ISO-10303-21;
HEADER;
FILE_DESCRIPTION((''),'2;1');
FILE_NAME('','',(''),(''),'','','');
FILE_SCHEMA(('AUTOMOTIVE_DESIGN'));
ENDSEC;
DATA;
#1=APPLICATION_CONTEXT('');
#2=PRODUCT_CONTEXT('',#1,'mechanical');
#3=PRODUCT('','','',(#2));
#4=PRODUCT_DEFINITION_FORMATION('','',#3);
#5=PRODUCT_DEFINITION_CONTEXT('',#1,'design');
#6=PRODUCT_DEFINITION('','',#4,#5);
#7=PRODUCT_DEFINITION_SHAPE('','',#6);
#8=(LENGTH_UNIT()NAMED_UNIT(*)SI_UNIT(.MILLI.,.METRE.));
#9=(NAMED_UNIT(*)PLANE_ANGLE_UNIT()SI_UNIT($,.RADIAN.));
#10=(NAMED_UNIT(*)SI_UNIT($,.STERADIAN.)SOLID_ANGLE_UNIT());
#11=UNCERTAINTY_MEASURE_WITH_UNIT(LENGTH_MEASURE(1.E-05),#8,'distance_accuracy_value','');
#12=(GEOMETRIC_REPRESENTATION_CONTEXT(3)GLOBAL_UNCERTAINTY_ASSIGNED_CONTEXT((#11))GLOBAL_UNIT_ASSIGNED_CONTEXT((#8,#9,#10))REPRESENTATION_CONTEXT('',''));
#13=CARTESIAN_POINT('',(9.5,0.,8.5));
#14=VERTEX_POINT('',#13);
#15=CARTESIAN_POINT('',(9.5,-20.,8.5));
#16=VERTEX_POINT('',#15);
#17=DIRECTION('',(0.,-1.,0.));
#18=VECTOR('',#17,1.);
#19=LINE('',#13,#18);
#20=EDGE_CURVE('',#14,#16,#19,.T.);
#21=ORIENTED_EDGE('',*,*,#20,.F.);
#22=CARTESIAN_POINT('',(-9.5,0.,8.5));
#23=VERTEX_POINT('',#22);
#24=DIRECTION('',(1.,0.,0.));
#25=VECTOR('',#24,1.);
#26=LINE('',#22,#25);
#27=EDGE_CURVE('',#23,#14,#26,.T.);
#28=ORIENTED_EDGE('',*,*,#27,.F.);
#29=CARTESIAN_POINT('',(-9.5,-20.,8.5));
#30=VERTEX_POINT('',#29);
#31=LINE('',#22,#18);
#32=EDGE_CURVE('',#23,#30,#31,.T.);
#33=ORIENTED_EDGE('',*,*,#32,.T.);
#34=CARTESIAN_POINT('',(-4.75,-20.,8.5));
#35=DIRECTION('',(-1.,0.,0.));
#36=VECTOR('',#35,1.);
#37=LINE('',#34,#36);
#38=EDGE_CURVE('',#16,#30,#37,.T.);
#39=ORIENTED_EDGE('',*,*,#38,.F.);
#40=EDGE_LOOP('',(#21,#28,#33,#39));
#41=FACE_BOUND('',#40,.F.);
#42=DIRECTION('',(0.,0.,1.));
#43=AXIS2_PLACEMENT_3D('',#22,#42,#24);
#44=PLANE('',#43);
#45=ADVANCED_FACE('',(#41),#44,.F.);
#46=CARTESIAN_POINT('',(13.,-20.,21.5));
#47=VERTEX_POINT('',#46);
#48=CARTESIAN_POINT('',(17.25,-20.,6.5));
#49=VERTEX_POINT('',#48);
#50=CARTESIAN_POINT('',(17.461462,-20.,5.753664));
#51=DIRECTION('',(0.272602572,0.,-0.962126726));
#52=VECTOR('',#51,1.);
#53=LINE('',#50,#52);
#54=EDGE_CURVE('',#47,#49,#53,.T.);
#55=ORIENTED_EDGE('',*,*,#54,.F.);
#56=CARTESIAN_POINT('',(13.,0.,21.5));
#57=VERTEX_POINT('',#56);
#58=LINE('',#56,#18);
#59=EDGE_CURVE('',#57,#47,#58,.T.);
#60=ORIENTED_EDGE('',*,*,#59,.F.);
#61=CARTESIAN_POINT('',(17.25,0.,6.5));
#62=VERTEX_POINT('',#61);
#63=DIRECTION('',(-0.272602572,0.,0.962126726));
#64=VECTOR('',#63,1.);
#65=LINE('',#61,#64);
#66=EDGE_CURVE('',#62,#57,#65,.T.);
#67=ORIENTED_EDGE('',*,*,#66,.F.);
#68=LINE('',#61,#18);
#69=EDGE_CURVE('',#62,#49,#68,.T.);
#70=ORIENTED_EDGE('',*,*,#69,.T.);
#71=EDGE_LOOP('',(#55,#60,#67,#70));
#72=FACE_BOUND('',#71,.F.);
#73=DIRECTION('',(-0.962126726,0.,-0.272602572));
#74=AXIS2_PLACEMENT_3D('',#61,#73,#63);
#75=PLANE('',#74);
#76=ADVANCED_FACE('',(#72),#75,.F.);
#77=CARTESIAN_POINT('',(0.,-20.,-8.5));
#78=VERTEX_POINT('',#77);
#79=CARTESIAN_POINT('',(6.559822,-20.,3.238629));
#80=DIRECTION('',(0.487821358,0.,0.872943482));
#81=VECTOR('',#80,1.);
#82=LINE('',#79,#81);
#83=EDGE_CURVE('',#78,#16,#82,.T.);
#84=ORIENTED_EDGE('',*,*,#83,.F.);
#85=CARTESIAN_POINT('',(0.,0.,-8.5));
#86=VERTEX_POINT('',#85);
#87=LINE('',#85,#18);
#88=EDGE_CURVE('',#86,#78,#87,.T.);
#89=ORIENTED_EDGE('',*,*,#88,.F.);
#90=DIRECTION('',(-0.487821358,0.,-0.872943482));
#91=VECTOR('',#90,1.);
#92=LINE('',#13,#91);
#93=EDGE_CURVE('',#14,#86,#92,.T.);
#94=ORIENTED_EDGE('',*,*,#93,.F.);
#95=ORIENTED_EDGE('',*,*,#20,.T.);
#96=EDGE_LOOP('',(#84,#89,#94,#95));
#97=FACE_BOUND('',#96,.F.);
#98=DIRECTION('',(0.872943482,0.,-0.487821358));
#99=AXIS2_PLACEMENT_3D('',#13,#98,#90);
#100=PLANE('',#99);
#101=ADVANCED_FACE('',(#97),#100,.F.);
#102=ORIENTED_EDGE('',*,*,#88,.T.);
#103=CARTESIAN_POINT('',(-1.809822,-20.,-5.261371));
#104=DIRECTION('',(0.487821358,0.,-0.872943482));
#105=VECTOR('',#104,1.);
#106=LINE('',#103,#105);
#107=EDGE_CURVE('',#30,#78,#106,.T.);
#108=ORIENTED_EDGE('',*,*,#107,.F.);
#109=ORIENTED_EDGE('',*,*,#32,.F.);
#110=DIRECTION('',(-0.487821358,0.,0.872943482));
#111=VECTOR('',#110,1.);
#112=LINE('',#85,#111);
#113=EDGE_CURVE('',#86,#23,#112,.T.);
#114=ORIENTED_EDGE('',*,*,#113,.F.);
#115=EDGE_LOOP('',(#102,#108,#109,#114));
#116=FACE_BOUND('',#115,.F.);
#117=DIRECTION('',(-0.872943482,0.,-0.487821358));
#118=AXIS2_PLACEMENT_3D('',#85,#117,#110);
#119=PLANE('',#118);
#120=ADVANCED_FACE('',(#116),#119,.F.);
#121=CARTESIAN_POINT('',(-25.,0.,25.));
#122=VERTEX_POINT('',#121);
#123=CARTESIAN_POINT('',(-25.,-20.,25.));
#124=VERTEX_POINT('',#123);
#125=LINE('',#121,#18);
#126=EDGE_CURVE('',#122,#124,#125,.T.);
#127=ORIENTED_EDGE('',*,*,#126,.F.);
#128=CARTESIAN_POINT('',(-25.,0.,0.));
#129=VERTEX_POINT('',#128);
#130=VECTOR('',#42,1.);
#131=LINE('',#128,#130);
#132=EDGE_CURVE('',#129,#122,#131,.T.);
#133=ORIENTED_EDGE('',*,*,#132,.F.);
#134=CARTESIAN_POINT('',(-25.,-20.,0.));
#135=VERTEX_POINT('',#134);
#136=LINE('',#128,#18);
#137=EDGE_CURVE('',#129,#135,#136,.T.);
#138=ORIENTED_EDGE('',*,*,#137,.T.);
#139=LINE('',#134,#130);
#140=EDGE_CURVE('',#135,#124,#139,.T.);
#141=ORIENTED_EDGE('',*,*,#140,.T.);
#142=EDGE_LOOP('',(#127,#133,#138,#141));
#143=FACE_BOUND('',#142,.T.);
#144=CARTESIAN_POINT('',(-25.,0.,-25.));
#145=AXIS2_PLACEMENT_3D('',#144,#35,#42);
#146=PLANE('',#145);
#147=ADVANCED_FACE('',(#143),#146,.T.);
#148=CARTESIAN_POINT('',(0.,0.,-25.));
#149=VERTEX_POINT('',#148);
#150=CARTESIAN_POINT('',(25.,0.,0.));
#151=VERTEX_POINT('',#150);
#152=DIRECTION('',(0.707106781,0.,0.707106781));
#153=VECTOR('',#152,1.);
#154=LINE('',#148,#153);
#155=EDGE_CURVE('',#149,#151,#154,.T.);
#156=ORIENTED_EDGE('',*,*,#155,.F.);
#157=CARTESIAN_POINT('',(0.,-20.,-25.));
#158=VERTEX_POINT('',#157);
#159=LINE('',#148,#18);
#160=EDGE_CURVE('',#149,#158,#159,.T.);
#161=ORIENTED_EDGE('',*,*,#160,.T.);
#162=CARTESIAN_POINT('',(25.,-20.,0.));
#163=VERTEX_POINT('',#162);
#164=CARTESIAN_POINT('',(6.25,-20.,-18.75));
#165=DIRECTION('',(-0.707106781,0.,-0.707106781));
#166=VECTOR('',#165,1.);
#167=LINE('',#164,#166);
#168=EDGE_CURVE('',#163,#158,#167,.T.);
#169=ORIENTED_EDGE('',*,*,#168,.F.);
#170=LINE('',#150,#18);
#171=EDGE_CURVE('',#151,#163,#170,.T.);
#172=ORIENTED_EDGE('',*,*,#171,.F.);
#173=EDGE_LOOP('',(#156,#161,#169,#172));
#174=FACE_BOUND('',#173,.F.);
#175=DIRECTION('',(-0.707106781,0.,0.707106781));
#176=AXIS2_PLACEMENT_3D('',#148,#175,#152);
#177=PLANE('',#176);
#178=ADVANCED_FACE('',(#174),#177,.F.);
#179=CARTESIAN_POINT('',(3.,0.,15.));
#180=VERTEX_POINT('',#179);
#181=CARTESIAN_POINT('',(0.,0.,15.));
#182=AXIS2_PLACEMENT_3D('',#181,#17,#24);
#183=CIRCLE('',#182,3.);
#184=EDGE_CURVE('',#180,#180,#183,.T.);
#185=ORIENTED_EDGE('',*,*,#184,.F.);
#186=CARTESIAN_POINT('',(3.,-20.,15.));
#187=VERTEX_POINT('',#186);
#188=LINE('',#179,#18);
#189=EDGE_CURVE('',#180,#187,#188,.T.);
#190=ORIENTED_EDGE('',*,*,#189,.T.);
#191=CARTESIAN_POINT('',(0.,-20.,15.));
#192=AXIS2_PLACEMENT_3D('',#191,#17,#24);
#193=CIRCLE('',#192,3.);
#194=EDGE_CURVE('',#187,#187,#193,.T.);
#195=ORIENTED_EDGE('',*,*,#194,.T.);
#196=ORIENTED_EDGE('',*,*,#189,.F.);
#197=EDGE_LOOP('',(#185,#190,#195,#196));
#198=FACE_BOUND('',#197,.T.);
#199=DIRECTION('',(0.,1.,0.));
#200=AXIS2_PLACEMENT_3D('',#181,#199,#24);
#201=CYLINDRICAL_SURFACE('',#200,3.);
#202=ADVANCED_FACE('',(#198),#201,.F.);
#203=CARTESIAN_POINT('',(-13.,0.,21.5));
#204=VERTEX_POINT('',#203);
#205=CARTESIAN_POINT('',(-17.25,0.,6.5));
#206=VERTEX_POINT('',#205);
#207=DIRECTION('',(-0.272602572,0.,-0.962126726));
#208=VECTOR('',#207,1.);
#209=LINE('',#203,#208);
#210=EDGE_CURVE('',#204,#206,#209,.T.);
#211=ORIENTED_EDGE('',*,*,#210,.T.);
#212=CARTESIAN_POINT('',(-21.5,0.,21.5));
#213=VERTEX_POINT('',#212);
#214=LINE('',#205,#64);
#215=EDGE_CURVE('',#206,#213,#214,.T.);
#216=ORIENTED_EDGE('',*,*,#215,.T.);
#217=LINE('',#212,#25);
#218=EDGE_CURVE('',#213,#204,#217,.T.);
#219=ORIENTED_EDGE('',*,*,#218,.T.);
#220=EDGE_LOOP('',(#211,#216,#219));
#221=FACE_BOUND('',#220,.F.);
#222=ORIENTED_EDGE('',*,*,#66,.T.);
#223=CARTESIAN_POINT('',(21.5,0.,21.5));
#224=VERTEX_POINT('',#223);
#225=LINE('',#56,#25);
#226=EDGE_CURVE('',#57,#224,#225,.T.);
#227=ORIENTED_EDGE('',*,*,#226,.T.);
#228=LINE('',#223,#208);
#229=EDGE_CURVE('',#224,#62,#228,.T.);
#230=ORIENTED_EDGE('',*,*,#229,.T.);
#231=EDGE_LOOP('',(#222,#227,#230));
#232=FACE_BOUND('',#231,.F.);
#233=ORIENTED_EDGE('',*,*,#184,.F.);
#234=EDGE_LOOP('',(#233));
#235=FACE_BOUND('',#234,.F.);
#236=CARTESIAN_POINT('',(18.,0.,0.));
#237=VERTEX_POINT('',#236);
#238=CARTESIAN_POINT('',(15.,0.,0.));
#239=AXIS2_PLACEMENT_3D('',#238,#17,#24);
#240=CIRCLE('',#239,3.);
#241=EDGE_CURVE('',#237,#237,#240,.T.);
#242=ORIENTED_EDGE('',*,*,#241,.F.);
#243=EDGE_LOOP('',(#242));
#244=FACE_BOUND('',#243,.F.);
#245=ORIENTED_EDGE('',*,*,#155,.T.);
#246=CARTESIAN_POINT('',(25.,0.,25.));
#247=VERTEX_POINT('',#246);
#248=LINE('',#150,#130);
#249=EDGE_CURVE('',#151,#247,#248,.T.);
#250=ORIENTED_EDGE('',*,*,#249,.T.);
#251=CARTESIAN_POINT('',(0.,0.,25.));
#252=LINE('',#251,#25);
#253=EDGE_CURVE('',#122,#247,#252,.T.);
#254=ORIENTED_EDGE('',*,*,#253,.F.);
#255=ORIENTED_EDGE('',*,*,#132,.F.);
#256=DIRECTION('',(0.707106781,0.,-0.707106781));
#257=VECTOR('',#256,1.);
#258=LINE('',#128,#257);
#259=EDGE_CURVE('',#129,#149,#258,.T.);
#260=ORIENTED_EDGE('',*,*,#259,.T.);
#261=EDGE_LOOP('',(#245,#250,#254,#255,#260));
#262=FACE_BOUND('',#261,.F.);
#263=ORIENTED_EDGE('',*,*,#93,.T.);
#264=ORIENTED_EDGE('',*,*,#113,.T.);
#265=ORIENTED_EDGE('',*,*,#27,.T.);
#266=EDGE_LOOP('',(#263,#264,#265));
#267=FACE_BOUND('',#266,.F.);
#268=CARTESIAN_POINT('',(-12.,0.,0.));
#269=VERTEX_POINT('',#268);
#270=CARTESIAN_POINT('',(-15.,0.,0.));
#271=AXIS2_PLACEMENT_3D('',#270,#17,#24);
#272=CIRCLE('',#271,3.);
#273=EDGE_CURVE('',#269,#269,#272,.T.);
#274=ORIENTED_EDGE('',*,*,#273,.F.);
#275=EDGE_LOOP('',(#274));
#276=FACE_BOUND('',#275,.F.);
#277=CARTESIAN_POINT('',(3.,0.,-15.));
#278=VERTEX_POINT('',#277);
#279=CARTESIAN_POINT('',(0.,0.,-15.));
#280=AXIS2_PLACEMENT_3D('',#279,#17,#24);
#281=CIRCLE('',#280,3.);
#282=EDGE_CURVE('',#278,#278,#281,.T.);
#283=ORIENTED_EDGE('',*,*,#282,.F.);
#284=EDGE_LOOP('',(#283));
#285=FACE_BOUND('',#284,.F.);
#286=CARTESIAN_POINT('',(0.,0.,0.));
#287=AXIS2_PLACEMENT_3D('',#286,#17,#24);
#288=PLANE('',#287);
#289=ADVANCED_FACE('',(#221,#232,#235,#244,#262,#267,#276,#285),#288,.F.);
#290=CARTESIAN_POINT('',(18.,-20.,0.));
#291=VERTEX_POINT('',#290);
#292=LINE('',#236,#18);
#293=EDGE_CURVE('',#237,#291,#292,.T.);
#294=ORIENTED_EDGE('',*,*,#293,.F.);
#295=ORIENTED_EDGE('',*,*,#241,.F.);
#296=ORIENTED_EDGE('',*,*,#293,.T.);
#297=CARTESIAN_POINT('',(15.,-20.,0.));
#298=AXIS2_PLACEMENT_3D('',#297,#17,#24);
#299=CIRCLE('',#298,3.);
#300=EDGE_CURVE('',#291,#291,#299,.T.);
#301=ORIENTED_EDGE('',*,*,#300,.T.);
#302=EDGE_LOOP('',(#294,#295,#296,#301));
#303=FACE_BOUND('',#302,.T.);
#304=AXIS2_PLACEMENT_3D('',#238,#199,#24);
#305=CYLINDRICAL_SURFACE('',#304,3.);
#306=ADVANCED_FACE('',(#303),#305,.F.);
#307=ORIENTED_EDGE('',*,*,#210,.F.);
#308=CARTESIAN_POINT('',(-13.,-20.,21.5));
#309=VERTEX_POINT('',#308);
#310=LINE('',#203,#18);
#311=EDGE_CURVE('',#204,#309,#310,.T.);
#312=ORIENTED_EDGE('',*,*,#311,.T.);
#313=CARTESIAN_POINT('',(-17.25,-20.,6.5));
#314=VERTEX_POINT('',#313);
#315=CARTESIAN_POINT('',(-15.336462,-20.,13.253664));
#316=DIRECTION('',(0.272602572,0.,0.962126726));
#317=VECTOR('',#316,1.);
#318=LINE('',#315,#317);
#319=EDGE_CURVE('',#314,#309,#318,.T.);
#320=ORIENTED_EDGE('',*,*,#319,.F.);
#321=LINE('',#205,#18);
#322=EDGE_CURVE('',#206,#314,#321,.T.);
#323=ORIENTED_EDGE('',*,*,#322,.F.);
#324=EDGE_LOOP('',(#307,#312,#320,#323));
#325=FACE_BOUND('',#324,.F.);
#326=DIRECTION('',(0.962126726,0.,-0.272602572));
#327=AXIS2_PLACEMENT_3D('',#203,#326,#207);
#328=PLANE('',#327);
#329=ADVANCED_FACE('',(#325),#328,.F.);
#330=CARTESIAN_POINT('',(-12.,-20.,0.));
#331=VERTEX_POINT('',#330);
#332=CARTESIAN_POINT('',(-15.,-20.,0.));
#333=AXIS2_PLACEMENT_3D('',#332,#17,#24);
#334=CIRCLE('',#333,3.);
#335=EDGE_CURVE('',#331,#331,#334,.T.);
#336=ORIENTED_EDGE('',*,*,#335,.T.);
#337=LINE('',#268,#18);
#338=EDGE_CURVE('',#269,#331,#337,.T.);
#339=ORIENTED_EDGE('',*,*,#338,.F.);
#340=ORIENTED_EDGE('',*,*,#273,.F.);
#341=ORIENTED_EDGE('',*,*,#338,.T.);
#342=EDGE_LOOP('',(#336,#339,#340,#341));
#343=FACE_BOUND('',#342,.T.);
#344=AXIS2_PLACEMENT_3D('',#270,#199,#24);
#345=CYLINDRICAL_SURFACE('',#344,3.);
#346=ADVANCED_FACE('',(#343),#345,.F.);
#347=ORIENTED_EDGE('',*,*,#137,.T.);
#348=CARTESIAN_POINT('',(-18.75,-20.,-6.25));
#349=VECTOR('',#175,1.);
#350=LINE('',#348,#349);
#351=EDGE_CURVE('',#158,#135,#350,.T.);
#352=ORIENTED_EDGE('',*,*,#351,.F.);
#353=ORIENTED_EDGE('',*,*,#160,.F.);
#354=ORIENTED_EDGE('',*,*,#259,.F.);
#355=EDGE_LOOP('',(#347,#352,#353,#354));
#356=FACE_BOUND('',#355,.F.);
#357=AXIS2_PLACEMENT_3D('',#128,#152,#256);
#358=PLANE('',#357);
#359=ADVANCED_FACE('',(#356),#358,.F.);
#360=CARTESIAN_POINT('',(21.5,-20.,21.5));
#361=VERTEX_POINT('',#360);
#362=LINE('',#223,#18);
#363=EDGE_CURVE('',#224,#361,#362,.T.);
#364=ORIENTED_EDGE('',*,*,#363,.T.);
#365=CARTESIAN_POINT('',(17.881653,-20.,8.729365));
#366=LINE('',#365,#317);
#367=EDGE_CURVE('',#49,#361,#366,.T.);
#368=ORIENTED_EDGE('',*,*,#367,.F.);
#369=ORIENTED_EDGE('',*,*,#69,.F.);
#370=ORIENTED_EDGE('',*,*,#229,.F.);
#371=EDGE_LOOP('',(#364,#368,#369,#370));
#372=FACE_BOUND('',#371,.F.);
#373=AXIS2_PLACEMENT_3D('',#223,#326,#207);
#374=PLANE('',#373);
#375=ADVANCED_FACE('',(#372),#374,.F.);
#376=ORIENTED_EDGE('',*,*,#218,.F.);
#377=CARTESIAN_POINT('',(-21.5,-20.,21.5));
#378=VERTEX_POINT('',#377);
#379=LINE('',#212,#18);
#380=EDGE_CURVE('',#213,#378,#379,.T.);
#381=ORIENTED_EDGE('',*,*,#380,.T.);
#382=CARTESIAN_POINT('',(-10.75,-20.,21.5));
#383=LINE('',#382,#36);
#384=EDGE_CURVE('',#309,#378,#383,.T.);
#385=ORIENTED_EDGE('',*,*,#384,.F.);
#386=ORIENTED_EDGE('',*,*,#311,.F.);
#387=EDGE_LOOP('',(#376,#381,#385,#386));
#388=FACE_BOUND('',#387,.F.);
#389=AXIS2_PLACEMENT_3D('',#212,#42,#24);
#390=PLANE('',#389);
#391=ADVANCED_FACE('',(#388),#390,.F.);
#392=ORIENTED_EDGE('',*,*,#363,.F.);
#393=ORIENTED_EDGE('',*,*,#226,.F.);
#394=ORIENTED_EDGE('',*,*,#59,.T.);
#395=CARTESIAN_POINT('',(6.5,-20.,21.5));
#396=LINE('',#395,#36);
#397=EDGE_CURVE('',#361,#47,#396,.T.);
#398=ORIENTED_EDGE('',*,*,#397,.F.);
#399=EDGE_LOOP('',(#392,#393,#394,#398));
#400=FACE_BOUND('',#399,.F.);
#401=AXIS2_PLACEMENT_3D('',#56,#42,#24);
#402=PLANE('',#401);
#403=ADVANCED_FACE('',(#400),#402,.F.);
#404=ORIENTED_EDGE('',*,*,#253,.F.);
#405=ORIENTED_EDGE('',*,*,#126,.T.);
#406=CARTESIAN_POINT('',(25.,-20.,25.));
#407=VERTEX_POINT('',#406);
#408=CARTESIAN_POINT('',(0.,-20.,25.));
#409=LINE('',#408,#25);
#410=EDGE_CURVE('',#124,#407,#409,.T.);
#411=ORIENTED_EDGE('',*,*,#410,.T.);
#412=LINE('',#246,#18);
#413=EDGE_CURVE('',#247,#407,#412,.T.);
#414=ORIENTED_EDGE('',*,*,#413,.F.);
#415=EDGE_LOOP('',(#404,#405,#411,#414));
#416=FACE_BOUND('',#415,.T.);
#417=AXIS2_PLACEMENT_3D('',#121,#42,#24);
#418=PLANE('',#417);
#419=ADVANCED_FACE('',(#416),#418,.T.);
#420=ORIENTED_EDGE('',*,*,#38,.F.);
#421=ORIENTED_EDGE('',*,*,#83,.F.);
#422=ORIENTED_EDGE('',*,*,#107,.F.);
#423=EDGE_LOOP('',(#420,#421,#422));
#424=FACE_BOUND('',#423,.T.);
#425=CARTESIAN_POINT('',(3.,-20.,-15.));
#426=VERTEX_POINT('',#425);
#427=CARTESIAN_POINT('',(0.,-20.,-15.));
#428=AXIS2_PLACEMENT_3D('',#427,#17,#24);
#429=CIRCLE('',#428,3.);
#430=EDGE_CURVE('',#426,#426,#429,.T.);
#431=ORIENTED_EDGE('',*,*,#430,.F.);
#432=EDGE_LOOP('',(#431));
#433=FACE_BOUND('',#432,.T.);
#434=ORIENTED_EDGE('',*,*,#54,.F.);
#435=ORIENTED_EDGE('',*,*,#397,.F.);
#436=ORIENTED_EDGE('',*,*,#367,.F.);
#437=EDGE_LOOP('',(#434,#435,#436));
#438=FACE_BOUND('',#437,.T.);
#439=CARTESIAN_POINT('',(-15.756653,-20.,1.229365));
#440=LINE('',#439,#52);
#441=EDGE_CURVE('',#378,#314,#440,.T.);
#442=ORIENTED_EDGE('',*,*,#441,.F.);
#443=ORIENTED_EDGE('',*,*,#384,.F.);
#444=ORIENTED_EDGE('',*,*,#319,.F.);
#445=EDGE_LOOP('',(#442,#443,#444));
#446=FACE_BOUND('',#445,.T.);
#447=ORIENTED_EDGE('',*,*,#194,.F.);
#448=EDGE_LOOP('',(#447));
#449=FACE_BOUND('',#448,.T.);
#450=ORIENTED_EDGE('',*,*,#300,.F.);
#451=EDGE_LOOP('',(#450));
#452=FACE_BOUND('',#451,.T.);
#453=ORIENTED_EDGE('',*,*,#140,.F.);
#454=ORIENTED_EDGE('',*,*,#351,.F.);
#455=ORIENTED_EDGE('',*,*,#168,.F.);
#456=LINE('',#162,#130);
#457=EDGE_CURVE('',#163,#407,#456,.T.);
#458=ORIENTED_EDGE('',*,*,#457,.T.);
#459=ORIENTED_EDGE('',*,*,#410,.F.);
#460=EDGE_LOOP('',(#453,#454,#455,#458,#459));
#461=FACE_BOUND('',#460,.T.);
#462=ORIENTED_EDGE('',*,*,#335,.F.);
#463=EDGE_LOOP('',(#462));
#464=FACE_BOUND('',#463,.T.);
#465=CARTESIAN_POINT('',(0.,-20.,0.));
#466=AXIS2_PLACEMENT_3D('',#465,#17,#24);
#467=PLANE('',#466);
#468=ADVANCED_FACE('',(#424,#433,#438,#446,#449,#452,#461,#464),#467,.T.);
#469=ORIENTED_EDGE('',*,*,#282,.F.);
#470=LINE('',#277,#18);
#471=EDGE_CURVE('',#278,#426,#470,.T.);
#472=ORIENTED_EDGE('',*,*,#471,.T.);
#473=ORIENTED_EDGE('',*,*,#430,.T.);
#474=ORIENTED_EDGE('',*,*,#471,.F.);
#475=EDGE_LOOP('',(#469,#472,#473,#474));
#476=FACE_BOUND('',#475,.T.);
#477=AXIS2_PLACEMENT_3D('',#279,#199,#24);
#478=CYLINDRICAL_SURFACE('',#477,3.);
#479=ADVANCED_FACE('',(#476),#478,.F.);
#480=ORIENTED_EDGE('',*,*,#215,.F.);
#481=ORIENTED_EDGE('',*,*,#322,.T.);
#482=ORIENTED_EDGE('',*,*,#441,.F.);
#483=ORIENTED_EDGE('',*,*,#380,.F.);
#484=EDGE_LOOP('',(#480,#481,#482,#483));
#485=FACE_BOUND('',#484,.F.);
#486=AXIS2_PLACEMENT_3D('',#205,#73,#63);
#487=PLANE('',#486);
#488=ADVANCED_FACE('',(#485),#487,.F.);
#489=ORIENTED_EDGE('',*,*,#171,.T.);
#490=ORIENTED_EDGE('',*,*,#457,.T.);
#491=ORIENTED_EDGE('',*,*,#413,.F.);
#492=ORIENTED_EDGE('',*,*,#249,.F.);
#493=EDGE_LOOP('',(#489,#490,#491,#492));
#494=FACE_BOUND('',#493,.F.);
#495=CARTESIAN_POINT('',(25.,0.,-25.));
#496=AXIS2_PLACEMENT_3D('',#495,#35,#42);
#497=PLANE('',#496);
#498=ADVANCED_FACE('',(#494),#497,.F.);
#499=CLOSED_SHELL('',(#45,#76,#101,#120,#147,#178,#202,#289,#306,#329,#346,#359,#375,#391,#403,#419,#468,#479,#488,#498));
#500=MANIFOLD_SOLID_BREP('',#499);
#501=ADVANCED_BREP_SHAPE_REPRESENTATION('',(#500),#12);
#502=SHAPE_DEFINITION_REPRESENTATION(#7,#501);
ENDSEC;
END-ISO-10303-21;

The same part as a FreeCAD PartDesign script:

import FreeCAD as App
import Part
import Sketcher


def add_polygon(sketch, points):
    """Adds a closed chain of lines whose ends are joined by coincident constraints."""
    first, n = sketch.GeometryCount, len(points)
    for a, b in zip(points, points[1:] + points[:1]):
        sketch.addGeometry(Part.LineSegment(App.Vector(*a, 0), App.Vector(*b, 0)), False)
    for i in range(n):
        sketch.addConstraint(Sketcher.Constraint("Coincident", first + i, 2, first + (i + 1) % n, 1))

doc = App.newDocument("Part")
body = doc.addObject("PartDesign::Body", "Body")

sketch1 = body.newObject("Sketcher::SketchObject", "Sketch")
sketch1.AttachmentSupport = (doc.getObject("XZ_Plane"), [""])
sketch1.MapMode = "FlatFace"
add_polygon(sketch1, [(-25, 25), (-25, -25), (25, -25), (25, 25)])
sketch1.addGeometry(Part.Circle(App.Vector(0, -15, 0), App.Vector(0, 0, 1), 3), False)
sketch1.addGeometry(Part.Circle(App.Vector(-15, 0, 0), App.Vector(0, 0, 1), 3), False)
sketch1.addGeometry(Part.Circle(App.Vector(15, 0, 0), App.Vector(0, 0, 1), 3), False)
sketch1.addGeometry(Part.Circle(App.Vector(0, 15, 0), App.Vector(0, 0, 1), 3), False)
sketch1.addConstraint([
    Sketcher.Constraint("Vertical", 0),
    Sketcher.Constraint("Horizontal", 1),
    Sketcher.Constraint("Vertical", 2),
    Sketcher.Constraint("Horizontal", 3),
    Sketcher.Constraint("Equal", 4, 5),
    Sketcher.Constraint("Equal", 5, 6),
    Sketcher.Constraint("Equal", 6, 7),
    Sketcher.Constraint("Symmetric", 5, 3, 6, 3, -1, 1),
    Sketcher.Constraint("Symmetric", 4, 3, 7, 3, -1, 1),
    Sketcher.Constraint("Symmetric", 0, 2, 2, 2, -1, 1),
    Sketcher.Constraint("PointOnObject", 4, 3, -2),
    Sketcher.Constraint("PointOnObject", 5, 3, -1),
    Sketcher.Constraint("Equal", 3, 0),
    Sketcher.Constraint("Diameter", 4, 6.0),
    Sketcher.Constraint("DistanceX", 1, 1, 1, 2, 50.0),
    Sketcher.Constraint("DistanceY", 4, 3, -1, 1, 15.0),
    Sketcher.Constraint("DistanceX", 5, 3, -1, 1, 15.0),
])
pad1 = body.newObject("PartDesign::Pad", "Pad")
pad1.Profile = sketch1
pad1.Length = 20

sketch2 = body.newObject("Sketcher::SketchObject", "Sketch001")
sketch2.AttachmentSupport = (doc.getObject("XZ_Plane"), [""])
sketch2.MapMode = "FlatFace"
add_polygon(sketch2, [(13, 22), (22, 22), (17, 6)])
add_polygon(sketch2, [(0, -8), (-10, 8), (10, 8)])
add_polygon(sketch2, [(-22, 22), (-13, 22), (-17, 6)])
add_polygon(sketch2, [(25, -25), (0, -25), (25, 0)])
add_polygon(sketch2, [(-25, 0), (0, -25), (-25, -25)])
sketch2.addConstraint([
    Sketcher.Constraint("Horizontal", 0),
    Sketcher.Constraint("Horizontal", 4),
    Sketcher.Constraint("Horizontal", 6),
    Sketcher.Constraint("Horizontal", 9),
    Sketcher.Constraint("Vertical", 11),
    Sketcher.Constraint("Horizontal", 13),
    Sketcher.Constraint("Vertical", 14),
    Sketcher.Constraint("Coincident", 12, 2, 9, 2),
    Sketcher.Constraint("Symmetric", 10, 2, 14, 2, -1, 1),
    Sketcher.Constraint("Symmetric", 2, 2, 6, 2, -2),
    Sketcher.Constraint("Symmetric", 1, 2, 7, 2, -2),
    Sketcher.Constraint("PointOnObject", 5, 2, -2),
    Sketcher.Constraint("PointOnObject", 9, 2, -2),
    Sketcher.Constraint("PointOnObject", 10, 2, -1),
    Sketcher.Constraint("Parallel", 1, 7),
    Sketcher.Constraint("Parallel", 2, 8),
    Sketcher.Constraint("Perpendicular", 10, 12),
    Sketcher.Constraint("Equal", 3, 5),
    Sketcher.Constraint("DistanceX", 4, 1, 4, 2, 19.0),
    Sketcher.Constraint("DistanceX", 9, 2, 9, 1, 25.0),
    Sketcher.Constraint("DistanceX", 0, 1, 0, 2, 8.5),
    Sketcher.Constraint("DistanceX", -1, 1, 2, 2, 13.0),
    Sketcher.Constraint("DistanceY", 1, 2, 0, 2, 15.0),
    Sketcher.Constraint("DistanceY", 3, 2, 2, 2, 13.0),
    Sketcher.Constraint("DistanceY", 5, 2, 3, 2, 17.0),
    Sketcher.Constraint("DistanceY", -1, 1, 0, 2, 21.5),
])
pocket1 = body.newObject("PartDesign::Pocket", "Pocket")
pocket1.Profile = sketch2
pocket1.Type = "ThroughAll"
pocket1.Reversed = True

doc.recompute()
